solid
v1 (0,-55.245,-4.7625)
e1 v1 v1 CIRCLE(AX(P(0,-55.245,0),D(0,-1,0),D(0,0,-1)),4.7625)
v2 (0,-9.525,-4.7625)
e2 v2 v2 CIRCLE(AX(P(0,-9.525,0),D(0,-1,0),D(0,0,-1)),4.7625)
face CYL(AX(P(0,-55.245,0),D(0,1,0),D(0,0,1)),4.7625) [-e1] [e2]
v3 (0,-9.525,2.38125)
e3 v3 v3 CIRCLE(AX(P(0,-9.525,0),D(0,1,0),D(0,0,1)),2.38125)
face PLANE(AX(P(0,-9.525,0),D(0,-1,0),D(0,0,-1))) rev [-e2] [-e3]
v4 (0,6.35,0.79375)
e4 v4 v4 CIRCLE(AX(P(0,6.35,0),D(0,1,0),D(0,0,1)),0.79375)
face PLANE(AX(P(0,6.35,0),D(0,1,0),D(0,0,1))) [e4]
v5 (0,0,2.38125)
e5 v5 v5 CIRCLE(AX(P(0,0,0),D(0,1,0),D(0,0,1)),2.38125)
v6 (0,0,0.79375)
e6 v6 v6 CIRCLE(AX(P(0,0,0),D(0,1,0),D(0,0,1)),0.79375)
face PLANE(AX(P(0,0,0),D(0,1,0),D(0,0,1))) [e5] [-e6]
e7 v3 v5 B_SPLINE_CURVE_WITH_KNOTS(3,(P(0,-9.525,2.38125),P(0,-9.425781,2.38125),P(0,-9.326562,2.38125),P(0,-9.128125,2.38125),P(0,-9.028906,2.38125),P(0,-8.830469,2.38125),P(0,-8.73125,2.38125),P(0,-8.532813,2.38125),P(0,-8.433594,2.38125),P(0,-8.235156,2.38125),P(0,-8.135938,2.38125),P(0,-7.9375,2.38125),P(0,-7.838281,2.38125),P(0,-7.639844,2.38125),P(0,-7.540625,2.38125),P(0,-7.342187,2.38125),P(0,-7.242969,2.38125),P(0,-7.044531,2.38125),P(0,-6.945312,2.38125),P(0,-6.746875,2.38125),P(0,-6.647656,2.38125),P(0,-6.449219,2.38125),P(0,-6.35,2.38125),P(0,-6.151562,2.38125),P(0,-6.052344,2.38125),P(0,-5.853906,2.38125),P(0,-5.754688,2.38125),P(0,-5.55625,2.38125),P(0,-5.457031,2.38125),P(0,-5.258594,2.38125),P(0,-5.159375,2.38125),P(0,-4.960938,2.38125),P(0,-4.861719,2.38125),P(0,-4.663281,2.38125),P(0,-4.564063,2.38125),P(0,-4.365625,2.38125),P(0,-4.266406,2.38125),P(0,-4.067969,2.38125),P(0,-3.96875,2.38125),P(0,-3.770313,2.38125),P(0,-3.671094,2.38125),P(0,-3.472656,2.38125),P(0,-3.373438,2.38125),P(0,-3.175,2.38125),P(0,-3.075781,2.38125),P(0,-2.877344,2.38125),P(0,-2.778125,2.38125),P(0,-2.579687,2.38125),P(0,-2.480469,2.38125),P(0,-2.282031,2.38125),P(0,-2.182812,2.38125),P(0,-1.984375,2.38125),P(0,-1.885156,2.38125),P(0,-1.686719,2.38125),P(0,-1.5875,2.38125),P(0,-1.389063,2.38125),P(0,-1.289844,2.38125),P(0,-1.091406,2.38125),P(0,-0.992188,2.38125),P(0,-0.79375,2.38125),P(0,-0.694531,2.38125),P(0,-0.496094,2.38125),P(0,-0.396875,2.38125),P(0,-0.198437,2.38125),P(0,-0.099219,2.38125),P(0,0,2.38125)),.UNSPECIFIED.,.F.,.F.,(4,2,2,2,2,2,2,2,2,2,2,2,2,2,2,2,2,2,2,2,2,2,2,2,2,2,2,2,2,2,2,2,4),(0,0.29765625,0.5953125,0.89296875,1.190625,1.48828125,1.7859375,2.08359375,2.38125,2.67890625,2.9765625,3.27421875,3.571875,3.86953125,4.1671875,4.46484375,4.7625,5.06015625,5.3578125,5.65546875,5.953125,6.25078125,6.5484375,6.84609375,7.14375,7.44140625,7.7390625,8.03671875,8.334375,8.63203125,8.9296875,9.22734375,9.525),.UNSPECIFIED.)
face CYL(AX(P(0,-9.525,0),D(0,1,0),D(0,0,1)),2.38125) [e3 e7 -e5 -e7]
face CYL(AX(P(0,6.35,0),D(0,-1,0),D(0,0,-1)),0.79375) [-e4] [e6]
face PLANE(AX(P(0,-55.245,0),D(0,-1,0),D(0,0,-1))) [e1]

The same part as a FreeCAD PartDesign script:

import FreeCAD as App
import Part
import Sketcher
Q = App.Units.Quantity

doc = App.newDocument("Part")
body = doc.addObject("PartDesign::Body", "Body")

sketch1 = body.newObject("Sketcher::SketchObject", "Sketch")
sketch1.AttachmentSupport = (doc.getObject("XZ_Plane"), [""])
sketch1.MapMode = "FlatFace"
sketch1.addGeometry(Part.Circle(App.Vector(0, 0, 0), App.Vector(0, 0, 1), 2.4), False)
sketch1.addConstraint(Sketcher.Constraint("Coincident", 0, 3, -1, 1))
sketch1.addConstraint(Sketcher.Constraint("Diameter", 0, Q("0.1875 in")))
pad1 = body.newObject("PartDesign::Pad", "Pad")
pad1.Profile = sketch1
pad1.Length = Q("0.375 in")

sketch2 = body.newObject("Sketcher::SketchObject", "Sketch001")
sketch2.AttachmentSupport = (doc.getObject("XZ_Plane"), [""])
sketch2.MapMode = "FlatFace"
sketch2.AttachmentOffset = App.Placement(App.Vector(0, 0, 0.375 * 25.4), App.Rotation())
sketch2.addGeometry(Part.Circle(App.Vector(0, 0, 0), App.Vector(0, 0, 1), 4.8), False)
sketch2.addConstraint(Sketcher.Constraint("Coincident", 0, 3, -1, 1))
sketch2.addConstraint(Sketcher.Constraint("Diameter", 0, Q("0.375 in")))
pad2 = body.newObject("PartDesign::Pad", "Pad001")
pad2.Profile = sketch2
pad2.Length = Q("1.8 in")

sketch3 = body.newObject("Sketcher::SketchObject", "Sketch002")
sketch3.AttachmentSupport = (doc.getObject("XZ_Plane"), [""])
sketch3.MapMode = "FlatFace"
sketch3.addGeometry(Part.Circle(App.Vector(0, 0, 0), App.Vector(0, 0, 1), 0.8), False)
sketch3.addConstraint(Sketcher.Constraint("Coincident", 0, 3, -1, 1))
sketch3.addConstraint(Sketcher.Constraint("Diameter", 0, Q("0.0625 in")))
pad3 = body.newObject("PartDesign::Pad", "Pad002")
pad3.Profile = sketch3
pad3.Length = Q("0.25 in")
pad3.Reversed = True

doc.recompute()
